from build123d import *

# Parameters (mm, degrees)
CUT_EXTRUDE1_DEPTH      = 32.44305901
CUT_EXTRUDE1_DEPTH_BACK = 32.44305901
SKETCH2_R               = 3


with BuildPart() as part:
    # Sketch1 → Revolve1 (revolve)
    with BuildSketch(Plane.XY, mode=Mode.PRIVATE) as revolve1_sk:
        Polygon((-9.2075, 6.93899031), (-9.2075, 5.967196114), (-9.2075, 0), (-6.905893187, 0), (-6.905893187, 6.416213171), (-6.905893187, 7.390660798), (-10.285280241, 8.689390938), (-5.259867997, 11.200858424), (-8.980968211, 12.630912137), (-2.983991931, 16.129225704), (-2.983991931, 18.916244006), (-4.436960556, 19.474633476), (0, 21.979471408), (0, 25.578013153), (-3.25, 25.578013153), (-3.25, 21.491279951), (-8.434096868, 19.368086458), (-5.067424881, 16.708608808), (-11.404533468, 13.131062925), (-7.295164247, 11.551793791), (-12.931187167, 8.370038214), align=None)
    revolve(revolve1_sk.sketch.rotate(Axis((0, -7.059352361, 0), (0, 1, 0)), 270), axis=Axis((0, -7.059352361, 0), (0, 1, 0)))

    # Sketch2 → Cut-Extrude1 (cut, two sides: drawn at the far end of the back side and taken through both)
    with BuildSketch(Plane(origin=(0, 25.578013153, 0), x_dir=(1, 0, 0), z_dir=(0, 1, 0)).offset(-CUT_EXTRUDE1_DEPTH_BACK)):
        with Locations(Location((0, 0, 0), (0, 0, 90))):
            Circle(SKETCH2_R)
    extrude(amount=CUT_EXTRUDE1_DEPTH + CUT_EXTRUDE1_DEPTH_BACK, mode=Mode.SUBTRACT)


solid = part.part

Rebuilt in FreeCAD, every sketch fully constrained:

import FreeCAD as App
import Part
import Sketcher

V = App.Vector
Q = App.Units.Quantity

doc = App.newDocument("Part")
body = doc.addObject("PartDesign::Body", "Body")

# Sketch on XY plane
sketch1 = body.newObject("Sketcher::SketchObject", "Sketch")
sketch1.AttachmentSupport = (doc.getObject("XY_Plane"), [""])
sketch1.MapMode = "FlatFace"
sketch1.addGeometry([
    Part.LineSegment(V(-9.2, 6.9, 0), V(-9.2, 0, 0)),  # 0
    Part.LineSegment(V(-9.2, 0, 0), V(-6.9, 0, 0)),  # 1
    Part.LineSegment(V(-6.9, 0, 0), V(-6.9, 7.4, 0)),  # 2
    Part.LineSegment(V(-6.9, 7.4, 0), V(-10.3, 8.7, 0)),  # 3
    Part.LineSegment(V(-10.3, 8.7, 0), V(-5.3, 11.2, 0)),  # 4
    Part.LineSegment(V(-5.3, 11.2, 0), V(-9, 12.6, 0)),  # 5
    Part.LineSegment(V(-9, 12.6, 0), V(-3, 16.1, 0)),  # 6
    Part.LineSegment(V(-3, 16.1, 0), V(-3, 18.9, 0)),  # 7
    Part.LineSegment(V(-3, 18.9, 0), V(-4.4, 19.5, 0)),  # 8
    Part.LineSegment(V(-4.4, 19.5, 0), V(0, 22, 0)),  # 9
    Part.LineSegment(V(0, 22, 0), V(0, 25.6, 0)),  # 10
    Part.LineSegment(V(0, 25.6, 0), V(-3.2, 25.6, 0)),  # 11
    Part.LineSegment(V(-3.2, 25.6, 0), V(-3.2, 21.5, 0)),  # 12
    Part.LineSegment(V(-3.2, 21.5, 0), V(-8.4, 19.4, 0)),  # 13
    Part.LineSegment(V(-8.4, 19.4, 0), V(-5.1, 16.7, 0)),  # 14
    Part.LineSegment(V(-5.1, 16.7, 0), V(-11.4, 13.1, 0)),  # 15
    Part.LineSegment(V(-11.4, 13.1, 0), V(-7.3, 11.6, 0)),  # 16
    Part.LineSegment(V(-7.3, 11.6, 0), V(-12.9, 8.4, 0)),  # 17
    Part.LineSegment(V(-12.9, 8.4, 0), V(-9.2, 6.9, 0)),  # 18
], False)
sketch1.addConstraint([
    Sketcher.Constraint("Coincident", 0, 2, 1, 1),
    Sketcher.Constraint("Coincident", 1, 2, 2, 1),
    Sketcher.Constraint("Coincident", 2, 2, 3, 1),
    Sketcher.Constraint("Coincident", 3, 2, 4, 1),
    Sketcher.Constraint("Coincident", 4, 2, 5, 1),
    Sketcher.Constraint("Coincident", 5, 2, 6, 1),
    Sketcher.Constraint("Coincident", 6, 2, 7, 1),
    Sketcher.Constraint("Coincident", 7, 2, 8, 1),
    Sketcher.Constraint("Coincident", 8, 2, 9, 1),
    Sketcher.Constraint("Coincident", 9, 2, 10, 1),
    Sketcher.Constraint("Coincident", 10, 2, 11, 1),
    Sketcher.Constraint("Coincident", 11, 2, 12, 1),
    Sketcher.Constraint("Coincident", 12, 2, 13, 1),
    Sketcher.Constraint("Coincident", 13, 2, 14, 1),
    Sketcher.Constraint("Coincident", 14, 2, 15, 1),
    Sketcher.Constraint("Coincident", 15, 2, 16, 1),
    Sketcher.Constraint("Coincident", 16, 2, 17, 1),
    Sketcher.Constraint("Coincident", 17, 2, 18, 1),
    Sketcher.Constraint("Coincident", 18, 2, 0, 1),
    Sketcher.Constraint("Vertical", 0),
    Sketcher.Constraint("Horizontal", 1),
    Sketcher.Constraint("Vertical", 2),
    Sketcher.Constraint("Vertical", 7),
    Sketcher.Constraint("Vertical", 10),
    Sketcher.Constraint("Horizontal", 11),
    Sketcher.Constraint("Vertical", 12),
    Sketcher.Constraint("PointOnObject", 0, 2, -1),
    Sketcher.Constraint("PointOnObject", 9, 2, -2),
    Sketcher.Constraint("Parallel", 3, 5),
    Sketcher.Constraint("Parallel", 5, 8),
    Sketcher.Constraint("Parallel", 9, 15),
    Sketcher.Constraint("Parallel", 8, 16),
    Sketcher.Constraint("Parallel", 15, 17),
    Sketcher.Constraint("Parallel", 16, 18),
    Sketcher.Constraint("DistanceX", 11, 2, 11, 1, Q("3.25 mm")),
    Sketcher.Constraint("DistanceY", 0, 2, 0, 1, Q("6.93899 mm")),
    Sketcher.Constraint("DistanceY", 2, 1, 2, 2, Q("7.390661 mm")),
    Sketcher.Constraint("DistanceY", 7, 1, 7, 2, Q("2.787018 mm")),
    Sketcher.Constraint("DistanceY", 10, 1, 10, 2, Q("3.598542 mm")),
    Sketcher.Constraint("DistanceX", 0, 2, -1, 1, Q("9.2075 mm")),
    Sketcher.Constraint("DistanceX", 5, 2, 4, 2, Q("3.7211 mm")),
    Sketcher.Constraint("DistanceX", 2, 2, 6, 2, Q("3.921901 mm")),
    Sketcher.Constraint("DistanceY", 18, 2, 3, 2, Q("1.750401 mm")),
    Sketcher.Constraint("Distance", 6, Q("6.94276 mm")),
    Sketcher.Constraint("Distance", 15, Q("7.27721 mm")),
    Sketcher.Constraint("Distance", 17, Q("6.472119 mm")),
    Sketcher.Constraint("DistanceX", 1, 1, 1, 2, Q("2.301607 mm")),
    Sketcher.Constraint("DistanceY", 12, 2, 12, 1, Q("4.086733 mm")),
    Sketcher.Constraint("DistanceX", 3, 2, -1, 1, Q("10.28528 mm")),
    Sketcher.Constraint("DistanceY", -1, 1, 4, 2, Q("11.200858 mm")),
    Sketcher.Constraint("DistanceX", 5, 2, -1, 1, Q("8.980968 mm")),
    Sketcher.Constraint("DistanceX", 8, 2, -1, 1, Q("4.436961 mm")),
    Sketcher.Constraint("DistanceY", -1, 1, 9, 2, Q("21.979471 mm")),
    Sketcher.Constraint("DistanceY", -1, 1, 14, 2, Q("16.708609 mm")),
    Sketcher.Constraint("DistanceY", -1, 1, 17, 2, Q("8.370038 mm")),
    Sketcher.Constraint("DistanceY", 6, 2, 13, 2, Q("3.238861 mm")),
    Sketcher.Constraint("DistanceX", 5, 2, 13, 2, Q("0.546871 mm")),
])
revolution = body.newObject("PartDesign::Revolution", "Revolution")
revolution.Profile = sketch1
revolution.ReferenceAxis = (sketch1, ["V_Axis"])
revolution.Angle = 360

# Sketch on XZ plane
sketch2 = body.newObject("Sketcher::SketchObject", "Sketch001")
sketch2.AttachmentSupport = (doc.getObject("XZ_Plane"), [""])
sketch2.MapMode = "FlatFace"
sketch2.AttachmentOffset = App.Placement(V(0, 0, -25.578013), App.Rotation())
sketch2.addGeometry(Part.Circle(V(0, 0, 0), V(0, 0, 1), 3), False)
sketch2.addConstraint([
    Sketcher.Constraint("Coincident", 0, 3, -1, 1),
    Sketcher.Constraint("Diameter", 0, Q("6 mm")),
])
pocket1 = body.newObject("PartDesign::Pocket", "Pocket")
pocket1.Profile = sketch2
pocket1.Type = "ThroughAll"
pocket1.Midplane = True

doc.recompute()
